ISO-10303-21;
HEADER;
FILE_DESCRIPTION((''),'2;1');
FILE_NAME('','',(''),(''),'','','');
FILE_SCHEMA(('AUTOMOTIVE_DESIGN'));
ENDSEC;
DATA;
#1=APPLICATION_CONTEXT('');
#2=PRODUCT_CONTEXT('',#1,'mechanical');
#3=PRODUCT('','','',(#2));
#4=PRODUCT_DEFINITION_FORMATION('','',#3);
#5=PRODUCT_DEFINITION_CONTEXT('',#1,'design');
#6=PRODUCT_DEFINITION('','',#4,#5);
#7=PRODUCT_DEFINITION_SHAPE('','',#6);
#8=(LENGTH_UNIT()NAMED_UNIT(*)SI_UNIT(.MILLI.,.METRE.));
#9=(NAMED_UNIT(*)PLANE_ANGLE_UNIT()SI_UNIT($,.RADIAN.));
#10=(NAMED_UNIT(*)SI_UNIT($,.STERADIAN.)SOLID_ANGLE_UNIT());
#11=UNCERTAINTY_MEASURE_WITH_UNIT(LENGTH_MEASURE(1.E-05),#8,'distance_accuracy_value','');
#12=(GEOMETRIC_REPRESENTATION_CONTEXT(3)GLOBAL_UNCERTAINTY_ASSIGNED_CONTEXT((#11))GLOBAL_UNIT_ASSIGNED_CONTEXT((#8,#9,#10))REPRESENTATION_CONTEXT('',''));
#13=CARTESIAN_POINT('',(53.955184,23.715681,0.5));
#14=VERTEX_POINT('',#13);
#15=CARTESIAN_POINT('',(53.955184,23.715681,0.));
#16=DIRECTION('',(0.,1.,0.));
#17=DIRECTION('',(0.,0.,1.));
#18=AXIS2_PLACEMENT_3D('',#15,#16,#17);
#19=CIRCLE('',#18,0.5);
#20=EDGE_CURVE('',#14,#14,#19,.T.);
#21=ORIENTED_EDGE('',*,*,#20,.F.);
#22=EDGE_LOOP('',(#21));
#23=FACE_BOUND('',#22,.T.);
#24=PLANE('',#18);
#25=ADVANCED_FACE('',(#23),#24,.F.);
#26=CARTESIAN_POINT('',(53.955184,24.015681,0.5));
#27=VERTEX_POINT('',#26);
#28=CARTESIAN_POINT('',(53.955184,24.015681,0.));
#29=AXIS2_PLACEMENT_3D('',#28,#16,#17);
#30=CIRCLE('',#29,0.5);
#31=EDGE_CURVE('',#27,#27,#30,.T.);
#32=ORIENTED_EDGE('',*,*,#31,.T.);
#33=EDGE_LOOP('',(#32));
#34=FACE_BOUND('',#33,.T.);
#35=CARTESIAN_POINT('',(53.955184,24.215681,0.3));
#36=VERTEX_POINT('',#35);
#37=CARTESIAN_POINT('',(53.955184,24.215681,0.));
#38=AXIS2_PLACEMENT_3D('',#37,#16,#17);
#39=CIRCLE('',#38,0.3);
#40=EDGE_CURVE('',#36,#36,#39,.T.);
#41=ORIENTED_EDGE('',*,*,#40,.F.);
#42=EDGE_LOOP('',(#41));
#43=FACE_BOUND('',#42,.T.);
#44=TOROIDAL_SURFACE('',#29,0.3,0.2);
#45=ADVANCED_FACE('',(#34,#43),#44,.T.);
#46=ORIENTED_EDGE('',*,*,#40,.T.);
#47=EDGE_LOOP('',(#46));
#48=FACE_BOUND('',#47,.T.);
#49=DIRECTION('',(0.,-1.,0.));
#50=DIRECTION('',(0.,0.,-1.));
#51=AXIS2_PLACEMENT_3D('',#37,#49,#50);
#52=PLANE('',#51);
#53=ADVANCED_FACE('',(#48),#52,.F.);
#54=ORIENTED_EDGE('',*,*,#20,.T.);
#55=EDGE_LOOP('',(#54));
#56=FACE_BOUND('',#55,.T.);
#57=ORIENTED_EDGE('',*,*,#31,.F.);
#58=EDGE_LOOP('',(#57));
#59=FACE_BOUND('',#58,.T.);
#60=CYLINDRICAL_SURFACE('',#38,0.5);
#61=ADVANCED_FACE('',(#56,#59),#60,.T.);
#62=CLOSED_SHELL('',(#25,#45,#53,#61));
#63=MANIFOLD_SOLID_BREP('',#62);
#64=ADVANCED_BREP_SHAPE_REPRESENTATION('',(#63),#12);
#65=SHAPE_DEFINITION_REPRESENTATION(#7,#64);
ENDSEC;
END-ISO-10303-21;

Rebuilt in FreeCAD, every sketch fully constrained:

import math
import FreeCAD as App
import Part
import Sketcher

V = App.Vector

doc = App.newDocument("Part")
params = doc.addObject("Spreadsheet::Sheet", "Params")
for row, (alias, value) in enumerate([
    ("sketch1_radius", "0.2 mm"),
    ("sketch1_width", "0.5 mm"),
    ("revolution_angle", "360 deg"),
], start=1):
    params.set(f"A{row}", alias)
    params.set(f"B{row}", "=" + value)
    params.setAlias(f"B{row}", alias)

body = doc.addObject("PartDesign::Body", "Body")

sketch1 = body.newObject("Sketcher::SketchObject", "Sketch")
sketch1.AttachmentSupport = (doc.getObject("XY_Plane"), [""])
sketch1.MapMode = "FlatFace"
sketch1.addGeometry([
    Part.LineSegment(V(53.96, 23.72, 0), V(54.46, 23.72, 0)),
    Part.LineSegment(V(54.46, 23.72, 0), V(54.46, 24.02, 0)),
    Part.ArcOfCircle(Part.Circle(V(54.26, 24.02, 0), V(0, 0, 1), 0.2), math.radians(0), math.radians(90)),
    Part.LineSegment(V(54.26, 24.22, 0), V(53.96, 24.22, 0)),
    Part.LineSegment(V(53.96, 24.22, 0), V(53.96, 23.72, 0)),
], False)
sketch1.addGeometry(Part.LineSegment(V(53.96, 24.22, 0), V(53.96, 23.72, 0)), True)
sketch1.addConstraint([
    Sketcher.Constraint("Coincident", 0, 2, 1, 1),
    Sketcher.Constraint("Tangent", 1, 2, 2, 1),
    Sketcher.Constraint("Tangent", 2, 2, 3, 1),
    Sketcher.Constraint("Coincident", 3, 2, 4, 1),
    Sketcher.Constraint("Coincident", 4, 2, 0, 1),
    Sketcher.Constraint("Horizontal", 0),
    Sketcher.Constraint("Vertical", 1),
    Sketcher.Constraint("Horizontal", 3),
    Sketcher.Constraint("Vertical", 4),
    Sketcher.Constraint("Vertical", 5),
    Sketcher.Constraint("Coincident", 5, 1, 3, 2),
    Sketcher.Constraint("Horizontal", 0, 2, 5, 2),
    Sketcher.Constraint("Equal", 3, 1),
    Sketcher.Constraint("Radius", 2, 0.2),
    Sketcher.Constraint("DistanceX", 0, 1, 0, 2, 0.5),
    Sketcher.Constraint("DistanceY", -1, 1, 2, 3, 24.015681),
    Sketcher.Constraint("DistanceX", -1, 1, 2, 3, 54.255184),
])
sketch1.setExpression("Constraints[13]", "Params.sketch1_radius")
sketch1.setExpression("Constraints[14]", "Params.sketch1_width")
revolution = body.newObject("PartDesign::Revolution", "Revolution")
revolution.Profile = sketch1
revolution.ReferenceAxis = (sketch1, ["Axis0"])
revolution.setExpression("Angle", "Params.revolution_angle")

doc.recompute()
